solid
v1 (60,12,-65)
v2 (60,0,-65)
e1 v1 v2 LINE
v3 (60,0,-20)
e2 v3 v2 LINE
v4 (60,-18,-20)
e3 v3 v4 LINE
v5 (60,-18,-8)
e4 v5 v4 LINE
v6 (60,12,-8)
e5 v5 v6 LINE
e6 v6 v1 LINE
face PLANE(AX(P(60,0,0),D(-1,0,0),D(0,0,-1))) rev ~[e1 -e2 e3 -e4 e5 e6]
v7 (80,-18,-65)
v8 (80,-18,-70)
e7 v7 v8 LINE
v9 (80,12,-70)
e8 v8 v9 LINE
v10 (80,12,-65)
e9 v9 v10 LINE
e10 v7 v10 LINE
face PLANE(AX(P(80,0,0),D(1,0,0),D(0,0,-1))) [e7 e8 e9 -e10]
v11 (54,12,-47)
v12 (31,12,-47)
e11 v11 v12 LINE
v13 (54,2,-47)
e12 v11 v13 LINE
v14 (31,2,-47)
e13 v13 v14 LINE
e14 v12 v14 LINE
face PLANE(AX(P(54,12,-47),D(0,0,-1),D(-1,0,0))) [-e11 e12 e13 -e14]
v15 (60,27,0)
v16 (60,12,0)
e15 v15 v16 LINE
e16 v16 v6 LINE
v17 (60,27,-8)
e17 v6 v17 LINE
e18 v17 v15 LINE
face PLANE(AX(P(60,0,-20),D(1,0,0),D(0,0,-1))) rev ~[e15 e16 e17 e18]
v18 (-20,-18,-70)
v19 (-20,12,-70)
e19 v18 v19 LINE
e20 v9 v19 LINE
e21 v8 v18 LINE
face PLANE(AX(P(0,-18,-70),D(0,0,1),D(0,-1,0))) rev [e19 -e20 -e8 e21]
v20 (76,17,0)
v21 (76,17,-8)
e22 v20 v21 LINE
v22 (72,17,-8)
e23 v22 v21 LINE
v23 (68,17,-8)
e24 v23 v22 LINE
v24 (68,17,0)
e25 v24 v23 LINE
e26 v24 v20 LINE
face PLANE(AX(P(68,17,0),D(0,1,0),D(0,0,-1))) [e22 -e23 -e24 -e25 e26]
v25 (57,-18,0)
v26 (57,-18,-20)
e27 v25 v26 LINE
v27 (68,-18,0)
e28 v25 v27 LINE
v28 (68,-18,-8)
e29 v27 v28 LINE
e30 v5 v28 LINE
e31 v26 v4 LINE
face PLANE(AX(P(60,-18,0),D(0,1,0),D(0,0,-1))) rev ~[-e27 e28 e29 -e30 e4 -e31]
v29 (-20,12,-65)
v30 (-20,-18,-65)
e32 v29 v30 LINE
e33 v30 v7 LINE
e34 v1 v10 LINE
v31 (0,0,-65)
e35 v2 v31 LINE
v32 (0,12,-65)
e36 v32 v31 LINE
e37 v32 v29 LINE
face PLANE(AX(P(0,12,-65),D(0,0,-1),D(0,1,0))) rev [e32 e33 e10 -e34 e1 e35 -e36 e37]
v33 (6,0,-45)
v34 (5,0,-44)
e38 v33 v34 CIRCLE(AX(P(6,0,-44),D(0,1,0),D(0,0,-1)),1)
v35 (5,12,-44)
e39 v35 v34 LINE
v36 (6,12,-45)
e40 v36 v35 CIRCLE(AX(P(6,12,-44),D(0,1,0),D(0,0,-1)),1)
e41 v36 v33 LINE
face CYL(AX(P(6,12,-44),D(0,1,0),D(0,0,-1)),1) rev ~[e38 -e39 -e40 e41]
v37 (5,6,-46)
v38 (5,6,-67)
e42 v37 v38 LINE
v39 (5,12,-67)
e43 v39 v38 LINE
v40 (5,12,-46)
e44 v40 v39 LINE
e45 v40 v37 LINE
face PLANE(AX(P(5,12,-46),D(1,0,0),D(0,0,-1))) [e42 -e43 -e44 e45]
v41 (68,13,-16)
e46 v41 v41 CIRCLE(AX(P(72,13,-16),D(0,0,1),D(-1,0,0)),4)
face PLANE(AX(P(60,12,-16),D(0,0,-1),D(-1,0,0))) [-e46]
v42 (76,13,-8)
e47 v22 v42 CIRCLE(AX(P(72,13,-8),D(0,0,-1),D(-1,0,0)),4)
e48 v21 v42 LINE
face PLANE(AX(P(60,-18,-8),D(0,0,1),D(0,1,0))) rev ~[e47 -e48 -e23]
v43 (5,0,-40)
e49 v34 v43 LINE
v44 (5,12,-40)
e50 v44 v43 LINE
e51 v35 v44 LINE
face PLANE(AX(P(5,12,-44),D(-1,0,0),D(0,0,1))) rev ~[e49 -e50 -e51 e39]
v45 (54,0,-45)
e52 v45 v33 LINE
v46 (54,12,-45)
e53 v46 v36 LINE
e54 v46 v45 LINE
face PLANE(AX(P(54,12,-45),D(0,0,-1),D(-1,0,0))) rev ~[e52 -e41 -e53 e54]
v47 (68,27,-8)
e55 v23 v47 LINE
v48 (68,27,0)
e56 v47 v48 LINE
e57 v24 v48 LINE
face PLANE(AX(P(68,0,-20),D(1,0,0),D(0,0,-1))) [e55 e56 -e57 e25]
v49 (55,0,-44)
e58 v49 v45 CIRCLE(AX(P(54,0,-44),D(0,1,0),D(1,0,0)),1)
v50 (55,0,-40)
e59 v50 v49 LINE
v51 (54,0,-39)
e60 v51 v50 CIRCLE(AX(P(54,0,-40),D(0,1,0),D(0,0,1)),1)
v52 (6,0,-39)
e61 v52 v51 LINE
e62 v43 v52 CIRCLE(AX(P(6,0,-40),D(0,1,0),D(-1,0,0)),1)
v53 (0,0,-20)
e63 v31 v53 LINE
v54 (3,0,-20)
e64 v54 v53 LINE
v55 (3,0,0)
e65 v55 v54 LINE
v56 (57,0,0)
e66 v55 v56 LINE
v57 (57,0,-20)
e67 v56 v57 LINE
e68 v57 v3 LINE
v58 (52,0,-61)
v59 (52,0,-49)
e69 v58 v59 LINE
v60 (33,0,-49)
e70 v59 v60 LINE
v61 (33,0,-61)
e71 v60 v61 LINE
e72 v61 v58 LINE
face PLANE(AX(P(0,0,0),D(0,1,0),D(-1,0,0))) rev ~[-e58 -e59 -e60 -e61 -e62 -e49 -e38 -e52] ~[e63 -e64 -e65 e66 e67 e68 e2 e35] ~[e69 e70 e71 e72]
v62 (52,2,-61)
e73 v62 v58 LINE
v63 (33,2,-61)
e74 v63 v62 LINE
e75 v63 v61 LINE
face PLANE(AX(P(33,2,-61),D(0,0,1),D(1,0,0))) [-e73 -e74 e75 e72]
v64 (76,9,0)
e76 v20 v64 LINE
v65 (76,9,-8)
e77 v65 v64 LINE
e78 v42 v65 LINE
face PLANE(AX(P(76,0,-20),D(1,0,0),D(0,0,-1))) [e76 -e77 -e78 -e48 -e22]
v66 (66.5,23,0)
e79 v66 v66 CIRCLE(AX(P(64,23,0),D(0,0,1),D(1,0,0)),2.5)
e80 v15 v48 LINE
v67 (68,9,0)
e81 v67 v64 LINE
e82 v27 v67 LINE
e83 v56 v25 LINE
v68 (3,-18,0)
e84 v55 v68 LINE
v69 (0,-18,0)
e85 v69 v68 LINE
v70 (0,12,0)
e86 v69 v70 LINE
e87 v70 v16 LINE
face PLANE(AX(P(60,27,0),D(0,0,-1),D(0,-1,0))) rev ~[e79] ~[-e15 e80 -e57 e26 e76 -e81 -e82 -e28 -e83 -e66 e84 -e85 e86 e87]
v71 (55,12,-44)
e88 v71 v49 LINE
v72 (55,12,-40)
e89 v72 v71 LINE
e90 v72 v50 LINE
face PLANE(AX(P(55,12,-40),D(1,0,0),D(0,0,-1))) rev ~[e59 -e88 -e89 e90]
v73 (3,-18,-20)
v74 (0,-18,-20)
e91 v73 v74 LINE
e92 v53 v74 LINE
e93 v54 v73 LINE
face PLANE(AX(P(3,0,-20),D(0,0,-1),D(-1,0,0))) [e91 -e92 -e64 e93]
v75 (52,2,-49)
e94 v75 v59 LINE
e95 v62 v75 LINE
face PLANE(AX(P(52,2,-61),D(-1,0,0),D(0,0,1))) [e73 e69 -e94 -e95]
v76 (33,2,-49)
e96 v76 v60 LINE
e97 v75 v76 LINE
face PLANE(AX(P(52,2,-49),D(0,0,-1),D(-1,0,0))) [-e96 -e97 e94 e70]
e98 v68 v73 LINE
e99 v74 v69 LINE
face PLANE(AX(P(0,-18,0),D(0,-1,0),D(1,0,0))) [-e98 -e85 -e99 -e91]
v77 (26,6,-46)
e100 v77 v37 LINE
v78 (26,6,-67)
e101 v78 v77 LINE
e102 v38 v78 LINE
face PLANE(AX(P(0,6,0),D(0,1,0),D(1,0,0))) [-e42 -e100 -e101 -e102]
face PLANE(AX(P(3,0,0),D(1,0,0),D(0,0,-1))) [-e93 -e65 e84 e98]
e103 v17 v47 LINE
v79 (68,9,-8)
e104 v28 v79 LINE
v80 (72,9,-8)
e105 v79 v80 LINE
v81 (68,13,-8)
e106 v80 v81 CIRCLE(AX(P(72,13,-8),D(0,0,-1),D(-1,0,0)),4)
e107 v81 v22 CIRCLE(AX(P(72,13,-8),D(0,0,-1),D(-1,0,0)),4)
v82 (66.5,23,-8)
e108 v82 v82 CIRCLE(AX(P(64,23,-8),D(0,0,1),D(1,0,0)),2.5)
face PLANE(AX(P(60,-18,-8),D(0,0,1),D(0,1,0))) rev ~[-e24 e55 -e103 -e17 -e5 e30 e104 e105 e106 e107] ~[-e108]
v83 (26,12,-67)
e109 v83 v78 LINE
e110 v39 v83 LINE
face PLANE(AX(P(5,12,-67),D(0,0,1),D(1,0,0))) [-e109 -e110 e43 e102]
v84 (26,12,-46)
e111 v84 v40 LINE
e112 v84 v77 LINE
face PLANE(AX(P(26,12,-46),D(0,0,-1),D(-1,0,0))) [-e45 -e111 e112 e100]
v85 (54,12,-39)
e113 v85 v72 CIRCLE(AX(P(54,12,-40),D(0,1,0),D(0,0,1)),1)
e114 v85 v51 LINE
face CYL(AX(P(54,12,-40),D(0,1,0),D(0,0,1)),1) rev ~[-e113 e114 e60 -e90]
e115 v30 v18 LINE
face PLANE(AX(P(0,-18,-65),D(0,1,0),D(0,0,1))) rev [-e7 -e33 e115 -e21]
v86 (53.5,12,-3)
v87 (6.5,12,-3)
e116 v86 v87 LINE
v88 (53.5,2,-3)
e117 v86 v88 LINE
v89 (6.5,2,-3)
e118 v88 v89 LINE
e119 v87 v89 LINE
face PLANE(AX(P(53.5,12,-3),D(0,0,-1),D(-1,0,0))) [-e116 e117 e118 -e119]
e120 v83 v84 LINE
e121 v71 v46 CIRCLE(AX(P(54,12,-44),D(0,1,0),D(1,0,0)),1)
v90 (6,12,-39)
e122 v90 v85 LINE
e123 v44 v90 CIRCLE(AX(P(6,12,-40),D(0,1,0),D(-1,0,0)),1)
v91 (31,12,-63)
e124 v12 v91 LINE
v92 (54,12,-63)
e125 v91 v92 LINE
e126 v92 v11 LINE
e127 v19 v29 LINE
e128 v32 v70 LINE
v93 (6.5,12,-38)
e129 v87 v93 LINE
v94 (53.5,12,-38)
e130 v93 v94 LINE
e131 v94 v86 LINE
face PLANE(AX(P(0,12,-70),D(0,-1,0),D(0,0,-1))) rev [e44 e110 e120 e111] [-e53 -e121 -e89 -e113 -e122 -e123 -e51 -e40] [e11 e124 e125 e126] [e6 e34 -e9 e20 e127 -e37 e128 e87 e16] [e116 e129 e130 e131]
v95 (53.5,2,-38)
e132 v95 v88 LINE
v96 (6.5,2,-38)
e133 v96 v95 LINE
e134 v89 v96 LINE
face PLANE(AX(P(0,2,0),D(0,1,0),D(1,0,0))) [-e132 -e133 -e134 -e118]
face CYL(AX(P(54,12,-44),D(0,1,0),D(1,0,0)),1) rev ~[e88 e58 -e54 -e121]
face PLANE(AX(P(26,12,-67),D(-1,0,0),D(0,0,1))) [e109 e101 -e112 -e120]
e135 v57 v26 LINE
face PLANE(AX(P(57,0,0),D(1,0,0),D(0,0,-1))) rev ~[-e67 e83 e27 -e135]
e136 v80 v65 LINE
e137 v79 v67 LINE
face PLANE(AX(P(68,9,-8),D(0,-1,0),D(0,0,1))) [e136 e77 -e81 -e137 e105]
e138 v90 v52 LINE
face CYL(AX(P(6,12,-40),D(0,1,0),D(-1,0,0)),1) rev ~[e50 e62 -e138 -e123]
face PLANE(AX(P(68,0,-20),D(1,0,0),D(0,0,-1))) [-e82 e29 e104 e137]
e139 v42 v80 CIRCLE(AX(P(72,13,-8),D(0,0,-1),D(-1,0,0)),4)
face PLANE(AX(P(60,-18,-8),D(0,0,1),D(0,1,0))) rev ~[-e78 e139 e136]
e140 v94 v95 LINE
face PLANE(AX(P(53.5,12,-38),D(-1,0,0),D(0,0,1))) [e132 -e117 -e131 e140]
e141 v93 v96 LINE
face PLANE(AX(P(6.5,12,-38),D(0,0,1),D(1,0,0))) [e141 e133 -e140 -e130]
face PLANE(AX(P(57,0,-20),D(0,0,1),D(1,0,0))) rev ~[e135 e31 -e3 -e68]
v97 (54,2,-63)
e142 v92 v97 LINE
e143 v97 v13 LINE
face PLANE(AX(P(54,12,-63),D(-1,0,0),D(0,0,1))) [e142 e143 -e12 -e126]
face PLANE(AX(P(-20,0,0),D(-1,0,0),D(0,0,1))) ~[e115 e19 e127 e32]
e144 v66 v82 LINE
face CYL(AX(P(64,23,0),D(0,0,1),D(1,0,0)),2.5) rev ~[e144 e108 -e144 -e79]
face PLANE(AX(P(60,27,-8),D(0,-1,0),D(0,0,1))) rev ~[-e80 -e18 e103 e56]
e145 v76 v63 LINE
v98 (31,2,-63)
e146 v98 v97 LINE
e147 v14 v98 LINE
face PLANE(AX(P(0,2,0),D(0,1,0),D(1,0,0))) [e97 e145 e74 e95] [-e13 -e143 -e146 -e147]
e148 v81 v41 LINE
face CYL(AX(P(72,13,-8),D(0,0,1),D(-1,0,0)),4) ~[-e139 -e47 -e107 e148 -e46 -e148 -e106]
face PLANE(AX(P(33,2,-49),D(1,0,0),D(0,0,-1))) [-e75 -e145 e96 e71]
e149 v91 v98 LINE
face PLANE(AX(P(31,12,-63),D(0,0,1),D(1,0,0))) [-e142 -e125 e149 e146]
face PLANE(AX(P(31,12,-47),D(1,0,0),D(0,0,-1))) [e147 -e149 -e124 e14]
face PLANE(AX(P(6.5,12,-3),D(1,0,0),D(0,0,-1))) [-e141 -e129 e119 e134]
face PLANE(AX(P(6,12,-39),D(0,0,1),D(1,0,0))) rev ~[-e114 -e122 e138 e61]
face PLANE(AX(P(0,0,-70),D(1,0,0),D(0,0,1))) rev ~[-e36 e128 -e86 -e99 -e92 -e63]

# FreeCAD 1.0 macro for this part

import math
import FreeCAD as App
import Part
import Sketcher
from FreeCAD import Vector
Q = App.Units.Quantity


def add_polygon(sketch, points):
    """Adds a closed chain of lines whose ends are joined by coincident constraints."""
    first, n = sketch.GeometryCount, len(points)
    for a, b in zip(points, points[1:] + points[:1]):
        sketch.addGeometry(Part.LineSegment(App.Vector(*a, 0), App.Vector(*b, 0)), False)
    for i in range(n):
        sketch.addConstraint(Sketcher.Constraint("Coincident", first + i, 2, first + (i + 1) % n, 1))

doc = App.newDocument("Part")
body = doc.addObject("PartDesign::Body", "Body")

sketch1 = body.newObject("Sketcher::SketchObject", "Sketch")
sketch1.AttachmentSupport = (doc.getObject("XZ_Plane"), [""])
sketch1.MapMode = "FlatFace"
add_polygon(sketch1, [(0, -70), (0, 0), (60, 0), (60, -70)])
sketch1.addConstraint(Sketcher.Constraint("Vertical", 0))
sketch1.addConstraint(Sketcher.Constraint("Horizontal", 1))
sketch1.addConstraint(Sketcher.Constraint("Vertical", 2))
sketch1.addConstraint(Sketcher.Constraint("Horizontal", 3))
sketch1.addConstraint(Sketcher.Constraint("Coincident", 0, 2, -1, 1))
sketch1.addConstraint(Sketcher.Constraint("DistanceX", 1, 1, 1, 2, Q("60 mm")))
sketch1.addConstraint(Sketcher.Constraint("DistanceY", 0, 1, 0, 2, Q("70 mm")))
pad1 = body.newObject("PartDesign::Pad", "Pad")
pad1.Profile = sketch1
pad1.Length = 12
pad1.Reversed = True

sketch2 = body.newObject("Sketcher::SketchObject", "Sketch001")
sketch2.AttachmentSupport = (doc.getObject("XZ_Plane"), [""])
sketch2.MapMode = "FlatFace"
add_polygon(sketch2, [(0, 0), (0, -20), (3, -20), (3, 0)])
add_polygon(sketch2, [(57, -20), (60, -20), (60, 0), (57, 0)])
add_polygon(sketch2, [(0, -70), (60, -70), (60, -65), (0, -65)])
sketch2.addConstraint(Sketcher.Constraint("Vertical", 0))
sketch2.addConstraint(Sketcher.Constraint("Horizontal", 1))
sketch2.addConstraint(Sketcher.Constraint("Vertical", 2))
sketch2.addConstraint(Sketcher.Constraint("Horizontal", 3))
sketch2.addConstraint(Sketcher.Constraint("Horizontal", 4))
sketch2.addConstraint(Sketcher.Constraint("Vertical", 5))
sketch2.addConstraint(Sketcher.Constraint("Horizontal", 6))
sketch2.addConstraint(Sketcher.Constraint("Vertical", 7))
sketch2.addConstraint(Sketcher.Constraint("Horizontal", 8))
sketch2.addConstraint(Sketcher.Constraint("Vertical", 9))
sketch2.addConstraint(Sketcher.Constraint("Horizontal", 10))
sketch2.addConstraint(Sketcher.Constraint("Vertical", 11))
sketch2.addConstraint(Sketcher.Constraint("Coincident", 3, 2, -1, 1))
sketch2.addConstraint(Sketcher.Constraint("PointOnObject", 5, 2, -1))
sketch2.addConstraint(Sketcher.Constraint("PointOnObject", 10, 2, -2))
sketch2.addConstraint(Sketcher.Constraint("Horizontal", 1, 2, 4, 2))
sketch2.addConstraint(Sketcher.Constraint("Vertical", 5, 2, 8, 2))
sketch2.addConstraint(Sketcher.Constraint("Equal", 3, 4))
sketch2.addConstraint(Sketcher.Constraint("DistanceX", 1, 1, 1, 2, Q("3 mm")))
sketch2.addConstraint(Sketcher.Constraint("DistanceY", 0, 2, 0, 1, Q("20 mm")))
sketch2.addConstraint(Sketcher.Constraint("DistanceY", 9, 1, 9, 2, Q("5 mm")))
sketch2.addConstraint(Sketcher.Constraint("DistanceX", 8, 1, 8, 2, Q("60 mm")))
sketch2.addConstraint(Sketcher.Constraint("DistanceY", 8, 2, -1, 1, Q("70 mm")))
pad2 = body.newObject("PartDesign::Pad", "Pad001")
pad2.Profile = sketch2
pad2.Length = 18

sketch3 = body.newObject("Sketcher::SketchObject", "Sketch002")
sketch3.AttachmentSupport = (doc.getObject("YZ_Plane"), [""])
sketch3.MapMode = "FlatFace"
sketch3.AttachmentOffset = App.Placement(Vector(0, 0, 60), App.Rotation())
add_polygon(sketch3, [(12, -65), (-18, -65), (-18, -70), (12, -70)])
sketch3.addConstraint(Sketcher.Constraint("Horizontal", 0))
sketch3.addConstraint(Sketcher.Constraint("Vertical", 1))
sketch3.addConstraint(Sketcher.Constraint("Horizontal", 2))
sketch3.addConstraint(Sketcher.Constraint("Vertical", 3))
sketch3.addConstraint(Sketcher.Constraint("DistanceX", 0, 2, 0, 1, Q("30 mm")))
sketch3.addConstraint(Sketcher.Constraint("DistanceY", 1, 2, 1, 1, Q("5 mm")))
sketch3.addConstraint(Sketcher.Constraint("DistanceX", 0, 2, -1, 1, Q("18 mm")))
sketch3.addConstraint(Sketcher.Constraint("DistanceY", 0, 2, -1, 1, Q("65 mm")))
pad3 = body.newObject("PartDesign::Pad", "Pad002")
pad3.Profile = sketch3
pad3.Length = 20
doc.recompute()

datumplane = body.newObject("PartDesign::Plane", "DatumPlane")
datumplane.AttachmentSupport = (doc.getObject("YZ_Plane"), [""])
datumplane.MapMode = "FlatFace"
datumplane.AttachmentOffset = App.Placement(Vector(0, 0, 30), App.Rotation())
mirrored = body.newObject("PartDesign::Mirrored", "Mirrored")
mirrored.Originals = [pad3]
mirrored.MirrorPlane = (datumplane, [""])
body.Tip = mirrored

sketch4 = body.newObject("Sketcher::SketchObject", "Sketch003")
sketch4.AttachmentSupport = (doc.getObject("XZ_Plane"), [""])
sketch4.MapMode = "FlatFace"
sketch4.AttachmentOffset = App.Placement(Vector(0, 0, -12), App.Rotation())
sketch4.addGeometry(Part.ArcOfCircle(Part.Circle(Vector(54, -44, 0), Vector(0, 0, 1), 1), math.radians(-90), math.radians(0)), False)
sketch4.addGeometry(Part.LineSegment(Vector(54, -45, 0), Vector(6, -45, 0)), False)
sketch4.addGeometry(Part.ArcOfCircle(Part.Circle(Vector(6, -44, 0), Vector(0, 0, 1), 1), math.radians(180), math.radians(270)), False)
sketch4.addGeometry(Part.LineSegment(Vector(5, -44, 0), Vector(5, -40, 0)), False)
sketch4.addGeometry(Part.ArcOfCircle(Part.Circle(Vector(6, -40, 0), Vector(0, 0, 1), 1), math.radians(90), math.radians(180)), False)
sketch4.addGeometry(Part.LineSegment(Vector(6, -39, 0), Vector(54, -39, 0)), False)
sketch4.addGeometry(Part.ArcOfCircle(Part.Circle(Vector(54, -40, 0), Vector(0, 0, 1), 1), math.radians(0), math.radians(90)), False)
sketch4.addGeometry(Part.LineSegment(Vector(55, -40, 0), Vector(55, -44, 0)), False)
sketch4.addConstraint(Sketcher.Constraint("Tangent", 0, 1, 1, 1))
sketch4.addConstraint(Sketcher.Constraint("Tangent", 1, 2, 2, 2))
sketch4.addConstraint(Sketcher.Constraint("Tangent", 2, 1, 3, 1))
sketch4.addConstraint(Sketcher.Constraint("Tangent", 3, 2, 4, 2))
sketch4.addConstraint(Sketcher.Constraint("Tangent", 4, 1, 5, 1))
sketch4.addConstraint(Sketcher.Constraint("Tangent", 5, 2, 6, 2))
sketch4.addConstraint(Sketcher.Constraint("Tangent", 6, 1, 7, 1))
sketch4.addConstraint(Sketcher.Constraint("Tangent", 7, 2, 0, 2))
sketch4.addConstraint(Sketcher.Constraint("Horizontal", 1))
sketch4.addConstraint(Sketcher.Constraint("Vertical", 3))
sketch4.addConstraint(Sketcher.Constraint("Horizontal", 5))
sketch4.addConstraint(Sketcher.Constraint("Vertical", 7))
sketch4.addConstraint(Sketcher.Constraint("Equal", 0, 2))
sketch4.addConstraint(Sketcher.Constraint("Equal", 2, 4))
sketch4.addConstraint(Sketcher.Constraint("Equal", 4, 6))
sketch4.addConstraint(Sketcher.Constraint("Radius", 0, Q("1 mm")))
sketch4.addConstraint(Sketcher.Constraint("DistanceX", -1, 1, 2, 3, Q("6 mm")))
sketch4.addConstraint(Sketcher.Constraint("DistanceY", 0, 1, 6, 3, Q("5 mm")))
sketch4.addConstraint(Sketcher.Constraint("DistanceX", 1, 2, 1, 1, Q("48 mm")))
sketch4.addConstraint(Sketcher.Constraint("DistanceY", 0, 3, -1, 1, Q("44 mm")))
pocket1 = body.newObject("PartDesign::Pocket", "Pocket")
pocket1.Profile = sketch4
pocket1.Length = 25
pocket1.Reversed = True

sketch5 = body.newObject("Sketcher::SketchObject", "Sketch004")
sketch5.AttachmentSupport = (doc.getObject("XZ_Plane"), [""])
sketch5.MapMode = "FlatFace"
sketch5.AttachmentOffset = App.Placement(Vector(0, 0, -12), App.Rotation())
add_polygon(sketch5, [(54, -38), (6, -38), (6, -3), (54, -3)])
add_polygon(sketch5, [(26, -67), (5, -67), (5, -46), (26, -46)])
add_polygon(sketch5, [(54, -63), (31, -63), (31, -47), (54, -47)])
sketch5.addConstraint(Sketcher.Constraint("Horizontal", 0))
sketch5.addConstraint(Sketcher.Constraint("Vertical", 1))
sketch5.addConstraint(Sketcher.Constraint("Horizontal", 2))
sketch5.addConstraint(Sketcher.Constraint("Vertical", 3))
sketch5.addConstraint(Sketcher.Constraint("Horizontal", 4))
sketch5.addConstraint(Sketcher.Constraint("Vertical", 5))
sketch5.addConstraint(Sketcher.Constraint("Horizontal", 6))
sketch5.addConstraint(Sketcher.Constraint("Vertical", 7))
sketch5.addConstraint(Sketcher.Constraint("Horizontal", 8))
sketch5.addConstraint(Sketcher.Constraint("Vertical", 9))
sketch5.addConstraint(Sketcher.Constraint("Horizontal", 10))
sketch5.addConstraint(Sketcher.Constraint("Vertical", 11))
sketch5.addConstraint(Sketcher.Constraint("Equal", 6, 5))
sketch5.addConstraint(Sketcher.Constraint("DistanceX", 0, 2, 0, 1, Q("47 mm")))
sketch5.addConstraint(Sketcher.Constraint("DistanceX", 4, 2, 4, 1, Q("21 mm")))
sketch5.addConstraint(Sketcher.Constraint("DistanceX", 8, 2, 8, 1, Q("23 mm")))
sketch5.addConstraint(Sketcher.Constraint("DistanceY", 1, 1, 1, 2, Q("35 mm")))
sketch5.addConstraint(Sketcher.Constraint("DistanceY", 9, 1, 9, 2, Q("16 mm")))
sketch5.addConstraint(Sketcher.Constraint("DistanceY", 1, 2, -1, 1, Q("3 mm")))
sketch5.addConstraint(Sketcher.Constraint("DistanceX", -1, 1, 4, 2, Q("5 mm")))
sketch5.addConstraint(Sketcher.Constraint("DistanceY", 9, 2, -1, 1, Q("47 mm")))
sketch5.addConstraint(Sketcher.Constraint("DistanceX", 7, 2, 8, 2, Q("5 mm")))
sketch5.addConstraint(Sketcher.Constraint("DistanceY", 4, 2, -1, 1, Q("67 mm")))
sketch5.addConstraint(Sketcher.Constraint("DistanceX", -1, 1, 0, 2, Q("6.5 mm")))
pocket2 = body.newObject("PartDesign::Pocket", "Pocket001")
pocket2.Profile = sketch5
pocket2.Length = 10
pocket2.Reversed = True

sketch6 = body.newObject("Sketcher::SketchObject", "Sketch005")
sketch6.AttachmentSupport = (doc.getObject("XZ_Plane"), [""])
sketch6.MapMode = "FlatFace"
sketch6.AttachmentOffset = App.Placement(Vector(0, 0, -2), App.Rotation())
add_polygon(sketch6, [(52, -61), (33, -61), (33, -49), (52, -49)])
sketch6.addConstraint(Sketcher.Constraint("Horizontal", 0))
sketch6.addConstraint(Sketcher.Constraint("Vertical", 1))
sketch6.addConstraint(Sketcher.Constraint("Horizontal", 2))
sketch6.addConstraint(Sketcher.Constraint("Vertical", 3))
sketch6.addConstraint(Sketcher.Constraint("DistanceX", 0, 2, 0, 1, Q("19 mm")))
sketch6.addConstraint(Sketcher.Constraint("DistanceY", 1, 1, 1, 2, Q("12 mm")))
sketch6.addConstraint(Sketcher.Constraint("DistanceX", -1, 1, 0, 2, Q("33 mm")))
sketch6.addConstraint(Sketcher.Constraint("DistanceY", 0, 2, -1, 1, Q("61 mm")))
pocket3 = body.newObject("PartDesign::Pocket", "Pocket002")
pocket3.Profile = sketch6
pocket3.Length = 12
pocket3.Reversed = True

sketch7 = body.newObject("Sketcher::SketchObject", "Sketch006")
sketch7.AttachmentSupport = (doc.getObject("XZ_Plane"), [""])
sketch7.MapMode = "FlatFace"
sketch7.AttachmentOffset = App.Placement(Vector(0, 0, -2), App.Rotation())
add_polygon(sketch7, [(5, -46), (26, -46), (26, -67), (5, -67)])
sketch7.addConstraint(Sketcher.Constraint("Horizontal", 0))
sketch7.addConstraint(Sketcher.Constraint("Vertical", 1))
sketch7.addConstraint(Sketcher.Constraint("Horizontal", 2))
sketch7.addConstraint(Sketcher.Constraint("Vertical", 3))
sketch7.addConstraint(Sketcher.Constraint("Equal", 2, 1))
sketch7.addConstraint(Sketcher.Constraint("DistanceX", 0, 1, 0, 2, Q("21 mm")))
sketch7.addConstraint(Sketcher.Constraint("DistanceX", -1, 1, 0, 2, Q("26 mm")))
sketch7.addConstraint(Sketcher.Constraint("DistanceY", 0, 2, -1, 1, Q("46 mm")))
pad4 = body.newObject("PartDesign::Pad", "Pad003")
pad4.Profile = sketch7
pad4.Length = 4
pad4.Reversed = True

sketch8 = body.newObject("Sketcher::SketchObject", "Sketch007")
sketch8.AttachmentSupport = (doc.getObject("YZ_Plane"), [""])
sketch8.MapMode = "FlatFace"
sketch8.AttachmentOffset = App.Placement(Vector(0, 0, 60), App.Rotation())
add_polygon(sketch8, [(27, 0), (-18, 0), (-18, -8), (27, -8)])
sketch8.addConstraint(Sketcher.Constraint("Horizontal", 0))
sketch8.addConstraint(Sketcher.Constraint("Vertical", 1))
sketch8.addConstraint(Sketcher.Constraint("Horizontal", 2))
sketch8.addConstraint(Sketcher.Constraint("Vertical", 3))
sketch8.addConstraint(Sketcher.Constraint("PointOnObject", 0, 2, -1))
sketch8.addConstraint(Sketcher.Constraint("DistanceX", 0, 2, 0, 1, Q("45 mm")))
sketch8.addConstraint(Sketcher.Constraint("DistanceY", 1, 2, 1, 1, Q("8 mm")))
sketch8.addConstraint(Sketcher.Constraint("DistanceX", 0, 2, -1, 1, Q("18 mm")))
pad5 = body.newObject("PartDesign::Pad", "Pad004")
pad5.Profile = sketch8
pad5.Length = 8

sketch9 = body.newObject("Sketcher::SketchObject", "Sketch008")
sketch9.AttachmentSupport = (doc.getObject("XY_Plane"), [""])
sketch9.MapMode = "FlatFace"
sketch9.addGeometry(Part.Circle(Vector(64, 23, 0), Vector(0, 0, 1), 2.5), False)
sketch9.addConstraint(Sketcher.Constraint("Diameter", 0, Q("5 mm")))
sketch9.addConstraint(Sketcher.Constraint("DistanceX", -1, 1, 0, 3, Q("64 mm")))
sketch9.addConstraint(Sketcher.Constraint("DistanceY", -1, 1, 0, 3, Q("23 mm")))
pocket4 = body.newObject("PartDesign::Pocket", "Pocket003")
pocket4.Profile = sketch9
pocket4.Length = 10

sketch10 = body.newObject("Sketcher::SketchObject", "Sketch009")
sketch10.AttachmentSupport = (doc.getObject("YZ_Plane"), [""])
sketch10.MapMode = "FlatFace"
sketch10.AttachmentOffset = App.Placement(Vector(0, 0, 68), App.Rotation())
add_polygon(sketch10, [(17, -8), (17, 0), (9, 0), (9, -8)])
sketch10.addConstraint(Sketcher.Constraint("Vertical", 0))
sketch10.addConstraint(Sketcher.Constraint("Horizontal", 1))
sketch10.addConstraint(Sketcher.Constraint("Vertical", 2))
sketch10.addConstraint(Sketcher.Constraint("Horizontal", 3))
sketch10.addConstraint(Sketcher.Constraint("PointOnObject", 0, 2, -1))
sketch10.addConstraint(Sketcher.Constraint("Equal", 3, 0))
sketch10.addConstraint(Sketcher.Constraint("DistanceX", 1, 2, 1, 1, Q("8 mm")))
sketch10.addConstraint(Sketcher.Constraint("DistanceX", -1, 1, 0, 2, Q("17 mm")))
pad6 = body.newObject("PartDesign::Pad", "Pad005")
pad6.Profile = sketch10
pad6.Length = 8

sketch11 = body.newObject("Sketcher::SketchObject", "Sketch010")
sketch11.AttachmentSupport = (doc.getObject("XY_Plane"), [""])
sketch11.MapMode = "FlatFace"
sketch11.AttachmentOffset = App.Placement(Vector(0, 0, -8), App.Rotation())
sketch11.addGeometry(Part.Circle(Vector(72, 13, 0), Vector(0, 0, 1), 4), False)
sketch11.addConstraint(Sketcher.Constraint("Diameter", 0, Q("8 mm")))
sketch11.addConstraint(Sketcher.Constraint("DistanceX", -1, 1, 0, 3, Q("72 mm")))
sketch11.addConstraint(Sketcher.Constraint("DistanceY", -1, 1, 0, 3, Q("13 mm")))
pad7 = body.newObject("PartDesign::Pad", "Pad006")
pad7.Profile = sketch11
pad7.Length = 8
pad7.Reversed = True

doc.recompute()
